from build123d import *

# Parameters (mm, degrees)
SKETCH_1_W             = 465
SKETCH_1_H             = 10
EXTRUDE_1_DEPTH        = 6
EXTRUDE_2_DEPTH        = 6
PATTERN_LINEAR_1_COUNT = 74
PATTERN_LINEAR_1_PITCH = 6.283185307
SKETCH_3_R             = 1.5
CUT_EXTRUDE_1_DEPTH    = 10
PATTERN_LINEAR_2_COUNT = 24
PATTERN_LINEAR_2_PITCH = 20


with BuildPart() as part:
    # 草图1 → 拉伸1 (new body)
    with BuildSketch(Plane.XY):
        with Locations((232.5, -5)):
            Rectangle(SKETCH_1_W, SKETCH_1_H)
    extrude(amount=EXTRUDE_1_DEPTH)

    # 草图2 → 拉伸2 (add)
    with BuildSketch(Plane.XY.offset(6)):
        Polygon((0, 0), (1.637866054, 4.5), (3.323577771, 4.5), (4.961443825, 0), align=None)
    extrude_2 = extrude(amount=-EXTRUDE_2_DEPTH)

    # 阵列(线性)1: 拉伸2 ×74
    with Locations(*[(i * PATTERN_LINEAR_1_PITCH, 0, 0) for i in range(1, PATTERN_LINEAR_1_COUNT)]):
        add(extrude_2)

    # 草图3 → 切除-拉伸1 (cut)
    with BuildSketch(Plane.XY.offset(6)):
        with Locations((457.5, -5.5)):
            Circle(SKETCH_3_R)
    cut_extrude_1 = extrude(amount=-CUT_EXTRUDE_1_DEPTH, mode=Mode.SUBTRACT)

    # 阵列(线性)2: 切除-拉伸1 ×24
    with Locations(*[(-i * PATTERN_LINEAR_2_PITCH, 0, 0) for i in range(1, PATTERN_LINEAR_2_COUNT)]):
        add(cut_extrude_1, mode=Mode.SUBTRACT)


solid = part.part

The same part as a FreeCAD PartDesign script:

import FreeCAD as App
import Part
import Sketcher
from FreeCAD import Vector
Q = App.Units.Quantity

doc = App.newDocument("Part")
params = doc.addObject("Spreadsheet::Sheet", "Params")
for row, (alias, value) in enumerate([
    ("sketch1_width", "465 mm"),
    ("sketch1_height", "10 mm"),
    ("pad1_length", "6 mm"),
    ("pad2_length", "6 mm"),
    ("linearpattern_pitch", "6.283185 mm"),
    ("sketch3_diameter", "3 mm"),
    ("pocket1_length", "10 mm"),
    ("linearpattern2_pitch", "20 mm"),
], start=1):
    params.set(f"A{row}", alias)
    params.set(f"B{row}", "=" + value)
    params.setAlias(f"B{row}", alias)

body = doc.addObject("PartDesign::Body", "Body")

# Sketch on XY plane
sketch1 = body.newObject("Sketcher::SketchObject", "Sketch")
sketch1.AttachmentSupport = (doc.getObject("XY_Plane"), [""])
sketch1.MapMode = "FlatFace"
sketch1.addGeometry(Part.LineSegment(Vector(0, 0, 0), Vector(0, -10, 0)), False)
sketch1.addGeometry(Part.LineSegment(Vector(0, -10, 0), Vector(465, -10, 0)), False)
sketch1.addGeometry(Part.LineSegment(Vector(465, -10, 0), Vector(465, 0, 0)), False)
sketch1.addGeometry(Part.LineSegment(Vector(465, 0, 0), Vector(0, 0, 0)), False)
sketch1.addConstraint(Sketcher.Constraint("Coincident", 0, 2, 1, 1))
sketch1.addConstraint(Sketcher.Constraint("Coincident", 1, 2, 2, 1))
sketch1.addConstraint(Sketcher.Constraint("Coincident", 2, 2, 3, 1))
sketch1.addConstraint(Sketcher.Constraint("Coincident", 3, 2, 0, 1))
sketch1.addConstraint(Sketcher.Constraint("Vertical", 0))
sketch1.addConstraint(Sketcher.Constraint("Horizontal", 1))
sketch1.addConstraint(Sketcher.Constraint("Vertical", 2))
sketch1.addConstraint(Sketcher.Constraint("Horizontal", 3))
sketch1.addConstraint(Sketcher.Constraint("Coincident", 3, 2, -1, 1))
sketch1.addConstraint(Sketcher.Constraint("DistanceX", 1, 1, 1, 2, Q("465 mm")))
sketch1.addConstraint(Sketcher.Constraint("DistanceY", 0, 2, 0, 1, Q("10 mm")))
sketch1.setExpression("Constraints[9]", "Params.sketch1_width")
sketch1.setExpression("Constraints[10]", "Params.sketch1_height")
pad1 = body.newObject("PartDesign::Pad", "Pad")
pad1.Profile = sketch1
pad1.setExpression("Length", "Params.pad1_length")

# Sketch on XY plane
sketch2 = body.newObject("Sketcher::SketchObject", "Sketch001")
sketch2.AttachmentSupport = (doc.getObject("XY_Plane"), [""])
sketch2.MapMode = "FlatFace"
sketch2.AttachmentOffset = App.Placement(Vector(0, 0, 6), App.Rotation())
sketch2.addGeometry(Part.LineSegment(Vector(1.6, 4.5, 0), Vector(0, 0, 0)), False)
sketch2.addGeometry(Part.LineSegment(Vector(0, 0, 0), Vector(5, 0, 0)), False)
sketch2.addGeometry(Part.LineSegment(Vector(5, 0, 0), Vector(3.3, 4.5, 0)), False)
sketch2.addGeometry(Part.LineSegment(Vector(3.3, 4.5, 0), Vector(1.6, 4.5, 0)), False)
sketch2.addConstraint(Sketcher.Constraint("Coincident", 0, 2, 1, 1))
sketch2.addConstraint(Sketcher.Constraint("Coincident", 1, 2, 2, 1))
sketch2.addConstraint(Sketcher.Constraint("Coincident", 2, 2, 3, 1))
sketch2.addConstraint(Sketcher.Constraint("Coincident", 3, 2, 0, 1))
sketch2.addConstraint(Sketcher.Constraint("Horizontal", 1))
sketch2.addConstraint(Sketcher.Constraint("Horizontal", 3))
sketch2.addConstraint(Sketcher.Constraint("Coincident", 0, 2, -1, 1))
sketch2.addConstraint(Sketcher.Constraint("Equal", 0, 2))
sketch2.addConstraint(Sketcher.Constraint("Angle", 0, Q("-110 deg")))
sketch2.addConstraint(Sketcher.Constraint("DistanceY", -1, 1, 2, 2, Q("4.5 mm")))
sketch2.addConstraint(Sketcher.Constraint("DistanceX", 3, 2, 3, 1, Q("1.685712 mm")))
pad2 = body.newObject("PartDesign::Pad", "Pad001")
pad2.Profile = sketch2
pad2.setExpression("Length", "Params.pad2_length")
pad2.Reversed = True
doc.recompute()

linearpattern = body.newObject("PartDesign::LinearPattern", "LinearPattern")
linearpattern.Originals = [pad2]
linearpattern.Direction = (doc.getObject("X_Axis"), [""])
linearpattern.Mode = "offset"
linearpattern.setExpression("Offset", "Params.linearpattern_pitch")
linearpattern.Occurrences = 74
body.Tip = linearpattern

# Sketch on XY plane
sketch3 = body.newObject("Sketcher::SketchObject", "Sketch002")
sketch3.AttachmentSupport = (doc.getObject("XY_Plane"), [""])
sketch3.MapMode = "FlatFace"
sketch3.AttachmentOffset = App.Placement(Vector(0, 0, 6), App.Rotation())
sketch3.addGeometry(Part.Circle(Vector(457.5, -5.5, 0), Vector(0, 0, 1), 1.5), False)
sketch3.addConstraint(Sketcher.Constraint("Diameter", 0, Q("3 mm")))
sketch3.addConstraint(Sketcher.Constraint("DistanceX", -1, 1, 0, 3, Q("457.5 mm")))
sketch3.addConstraint(Sketcher.Constraint("DistanceY", 0, 3, -1, 1, Q("5.5 mm")))
sketch3.setExpression("Constraints[0]", "Params.sketch3_diameter")
pocket1 = body.newObject("PartDesign::Pocket", "Pocket")
pocket1.Profile = sketch3
pocket1.setExpression("Length", "Params.pocket1_length")
doc.recompute()

linearpattern2 = body.newObject("PartDesign::LinearPattern", "LinearPattern001")
linearpattern2.Originals = [pocket1]
linearpattern2.Direction = (doc.getObject("X_Axis"), [""])
linearpattern2.Mode = "offset"
linearpattern2.setExpression("Offset", "Params.linearpattern2_pitch")
linearpattern2.Occurrences = 24
linearpattern2.Reversed = True
body.Tip = linearpattern2

doc.recompute()
